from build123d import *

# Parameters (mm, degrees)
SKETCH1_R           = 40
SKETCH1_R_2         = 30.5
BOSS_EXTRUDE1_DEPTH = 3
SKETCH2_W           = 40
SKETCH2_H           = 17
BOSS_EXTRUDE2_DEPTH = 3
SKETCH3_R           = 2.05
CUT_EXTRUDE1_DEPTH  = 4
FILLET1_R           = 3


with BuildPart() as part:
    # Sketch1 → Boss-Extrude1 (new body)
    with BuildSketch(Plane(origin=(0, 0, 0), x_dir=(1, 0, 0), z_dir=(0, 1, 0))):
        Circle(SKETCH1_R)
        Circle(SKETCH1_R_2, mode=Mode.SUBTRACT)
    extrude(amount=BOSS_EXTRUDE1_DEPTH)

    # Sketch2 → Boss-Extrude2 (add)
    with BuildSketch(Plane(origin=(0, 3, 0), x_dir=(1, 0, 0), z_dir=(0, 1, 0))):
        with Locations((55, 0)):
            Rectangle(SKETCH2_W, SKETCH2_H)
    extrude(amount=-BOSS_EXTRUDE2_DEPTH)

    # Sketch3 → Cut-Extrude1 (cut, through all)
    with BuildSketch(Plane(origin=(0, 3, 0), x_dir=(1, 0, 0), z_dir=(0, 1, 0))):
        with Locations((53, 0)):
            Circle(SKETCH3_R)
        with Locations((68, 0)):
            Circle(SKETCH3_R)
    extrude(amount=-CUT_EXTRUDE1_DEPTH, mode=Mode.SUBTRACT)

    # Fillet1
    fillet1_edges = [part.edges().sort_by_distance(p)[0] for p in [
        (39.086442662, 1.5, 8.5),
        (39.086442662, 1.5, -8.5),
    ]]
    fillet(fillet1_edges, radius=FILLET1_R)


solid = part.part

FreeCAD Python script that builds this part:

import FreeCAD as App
import Part
import Sketcher
from FreeCAD import Vector


def edges_at(feature, points):
    """Names of the edges that pass closest to the given points."""
    edges = feature.Shape.Edges
    near = lambda p: min(range(len(edges)), key=lambda i: edges[i].distToShape(Part.Vertex(*p))[0])
    return sorted({f"Edge{near(p) + 1}" for p in points})

doc = App.newDocument("Part")
body = doc.addObject("PartDesign::Body", "Body")

# Sketch on XZ plane
sketch1 = body.newObject("Sketcher::SketchObject", "Sketch")
sketch1.AttachmentSupport = (doc.getObject("XZ_Plane"), [""])
sketch1.MapMode = "FlatFace"
sketch1.addGeometry([
    Part.Circle(Vector(0, 0, 0), Vector(0, 0, 1), 40),
    Part.Circle(Vector(0, 0, 0), Vector(0, 0, 1), 30),
], False)
sketch1.addConstraint([
    Sketcher.Constraint("Coincident", 0, 3, -1, 1),
    Sketcher.Constraint("Coincident", 1, 3, -1, 1),
    Sketcher.Constraint("Diameter", 0, 80.0),
    Sketcher.Constraint("Diameter", 1, 61.0),
])
pad1 = body.newObject("PartDesign::Pad", "Pad")
pad1.Profile = sketch1
pad1.Length = 3
pad1.Reversed = True

# Sketch on XZ plane
sketch2 = body.newObject("Sketcher::SketchObject", "Sketch001")
sketch2.AttachmentSupport = (doc.getObject("XZ_Plane"), [""])
sketch2.MapMode = "FlatFace"
sketch2.AttachmentOffset = App.Placement(Vector(0, 0, -3), App.Rotation())
sketch2.addGeometry([
    Part.LineSegment(Vector(35, -8, 0), Vector(35, 8, 0)),
    Part.LineSegment(Vector(35, 8, 0), Vector(75, 8, 0)),
    Part.LineSegment(Vector(75, 8, 0), Vector(75, -8, 0)),
    Part.LineSegment(Vector(75, -8, 0), Vector(35, -8, 0)),
], False)
sketch2.addConstraint([
    Sketcher.Constraint("Coincident", 0, 2, 1, 1),
    Sketcher.Constraint("Coincident", 1, 2, 2, 1),
    Sketcher.Constraint("Coincident", 2, 2, 3, 1),
    Sketcher.Constraint("Coincident", 3, 2, 0, 1),
    Sketcher.Constraint("Vertical", 0),
    Sketcher.Constraint("Horizontal", 1),
    Sketcher.Constraint("Vertical", 2),
    Sketcher.Constraint("Horizontal", 3),
    Sketcher.Constraint("DistanceX", 1, 1, 1, 2, 40.0),
    Sketcher.Constraint("DistanceY", 0, 1, 0, 2, 17.0),
    Sketcher.Constraint("DistanceX", -1, 1, 0, 2, 35.0),
    Sketcher.Constraint("DistanceY", -1, 1, 0, 2, 8.5),
])
pad2 = body.newObject("PartDesign::Pad", "Pad001")
pad2.Profile = sketch2
pad2.Length = 3

# Sketch on XZ plane
sketch3 = body.newObject("Sketcher::SketchObject", "Sketch002")
sketch3.AttachmentSupport = (doc.getObject("XZ_Plane"), [""])
sketch3.MapMode = "FlatFace"
sketch3.AttachmentOffset = App.Placement(Vector(0, 0, -3), App.Rotation())
sketch3.addGeometry([
    Part.Circle(Vector(53, 0, 0), Vector(0, 0, 1), 2),
    Part.Circle(Vector(68, 0, 0), Vector(0, 0, 1), 2),
], False)
sketch3.addConstraint([
    Sketcher.Constraint("Equal", 0, 1),
    Sketcher.Constraint("PointOnObject", 0, 3, -1),
    Sketcher.Constraint("PointOnObject", 1, 3, -1),
    Sketcher.Constraint("Diameter", 0, 4.1),
    Sketcher.Constraint("DistanceX", -1, 1, 0, 3, 53.0),
    Sketcher.Constraint("DistanceX", -1, 1, 1, 3, 68.0),
])
pocket1 = body.newObject("PartDesign::Pocket", "Pocket")
pocket1.Profile = sketch3
pocket1.Type = "ThroughAll"
pocket1.Reversed = True
doc.recompute()

fillet = body.newObject("PartDesign::Fillet", "Fillet")
fillet.Base = (pocket1, edges_at(pocket1, [(39.086, 1.5, 8.5), (39.086, 1.5, -8.5)]))
fillet.Radius = 3

doc.recompute()
